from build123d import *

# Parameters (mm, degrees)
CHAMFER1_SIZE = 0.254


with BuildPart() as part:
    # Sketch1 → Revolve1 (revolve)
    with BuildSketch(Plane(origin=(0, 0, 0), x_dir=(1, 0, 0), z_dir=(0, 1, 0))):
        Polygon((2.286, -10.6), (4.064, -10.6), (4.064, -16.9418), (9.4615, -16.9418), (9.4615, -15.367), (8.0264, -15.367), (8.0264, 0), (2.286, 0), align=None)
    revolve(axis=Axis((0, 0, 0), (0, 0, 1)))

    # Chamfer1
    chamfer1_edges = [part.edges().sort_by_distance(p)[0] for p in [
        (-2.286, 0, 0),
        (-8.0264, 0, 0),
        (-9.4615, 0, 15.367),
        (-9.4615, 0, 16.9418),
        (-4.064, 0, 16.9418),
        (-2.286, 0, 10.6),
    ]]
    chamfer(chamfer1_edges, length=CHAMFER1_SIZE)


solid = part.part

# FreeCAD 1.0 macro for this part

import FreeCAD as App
import Part
import Sketcher
from FreeCAD import Vector
Q = App.Units.Quantity


def edges_at(feature, points):
    """Names of the edges that pass closest to the given points."""
    edges = feature.Shape.Edges
    near = lambda p: min(range(len(edges)), key=lambda i: edges[i].distToShape(Part.Vertex(*p))[0])
    return sorted({f"Edge{near(p) + 1}" for p in points})


def add_polygon(sketch, points):
    """Adds a closed chain of lines whose ends are joined by coincident constraints."""
    first, n = sketch.GeometryCount, len(points)
    for a, b in zip(points, points[1:] + points[:1]):
        sketch.addGeometry(Part.LineSegment(App.Vector(*a, 0), App.Vector(*b, 0)), False)
    for i in range(n):
        sketch.addConstraint(Sketcher.Constraint("Coincident", first + i, 2, first + (i + 1) % n, 1))

doc = App.newDocument("Part")
body = doc.addObject("PartDesign::Body", "Body")

# Sketch on XZ plane
sketch1 = body.newObject("Sketcher::SketchObject", "Sketch")
sketch1.AttachmentSupport = (doc.getObject("XZ_Plane"), [""])
sketch1.MapMode = "FlatFace"
add_polygon(sketch1, [(2.3, 10.6), (4.1, 10.6), (4.1, 16.9), (9.5, 16.9), (9.5, 15.4), (8, 15.4), (8, 0), (2.3, 0)])  # lines 0-7
sketch1.addConstraint(Sketcher.Constraint("Horizontal", 0))
sketch1.addConstraint(Sketcher.Constraint("Vertical", 1))
sketch1.addConstraint(Sketcher.Constraint("Horizontal", 2))
sketch1.addConstraint(Sketcher.Constraint("Vertical", 3))
sketch1.addConstraint(Sketcher.Constraint("Horizontal", 4))
sketch1.addConstraint(Sketcher.Constraint("Vertical", 5))
sketch1.addConstraint(Sketcher.Constraint("Horizontal", 6))
sketch1.addConstraint(Sketcher.Constraint("Vertical", 7))
sketch1.addConstraint(Sketcher.Constraint("PointOnObject", 5, 2, -1))
sketch1.addConstraint(Sketcher.Constraint("DistanceX", 0, 1, 0, 2, Q("0.07 in")))
sketch1.addConstraint(Sketcher.Constraint("DistanceX", 6, 2, 6, 1, Q("0.226 in")))
sketch1.addConstraint(Sketcher.Constraint("DistanceY", 3, 2, 3, 1, Q("0.062 in")))
sketch1.addConstraint(Sketcher.Constraint("DistanceY", 5, 2, 5, 1, Q("0.605 in")))
sketch1.addConstraint(Sketcher.Constraint("DistanceX", -1, 1, 0, 2, Q("0.16 in")))
sketch1.addConstraint(Sketcher.Constraint("DistanceX", 2, 1, 2, 2, Q("0.2125 in")))
sketch1.addConstraint(Sketcher.Constraint("DistanceY", 1, 1, 1, 2, 6.3418))
revolution = body.newObject("PartDesign::Revolution", "Revolution")
revolution.Profile = sketch1
revolution.ReferenceAxis = (sketch1, ["V_Axis"])
revolution.Angle = 360
doc.recompute()

chamfer = body.newObject("PartDesign::Chamfer", "Chamfer")
chamfer.Base = (revolution, edges_at(revolution, [
    (-2.286, 0, 0),
    (-8.026, 0, 0),
    (-9.461, 0, 15.367),
    (-9.461, 0, 16.942),
    (-4.064, 0, 16.942),
    (-2.286, 0, 10.6),
]))
chamfer.Size = Q("0.01 in")

doc.recompute()
